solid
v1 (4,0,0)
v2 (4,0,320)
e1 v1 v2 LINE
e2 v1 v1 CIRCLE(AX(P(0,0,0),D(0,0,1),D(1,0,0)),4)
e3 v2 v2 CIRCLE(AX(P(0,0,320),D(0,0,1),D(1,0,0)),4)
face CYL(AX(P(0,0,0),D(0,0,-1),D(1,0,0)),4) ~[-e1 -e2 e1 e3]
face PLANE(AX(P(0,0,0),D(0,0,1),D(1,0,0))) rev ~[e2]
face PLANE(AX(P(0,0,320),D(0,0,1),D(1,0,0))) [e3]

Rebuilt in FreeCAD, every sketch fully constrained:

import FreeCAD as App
import Part
import Sketcher
from FreeCAD import Vector

doc = App.newDocument("Part")
params = doc.addObject("Spreadsheet::Sheet", "Params")
for row, (alias, value) in enumerate([
    ("sketch1_diameter", "8 mm"),
    ("pad1_length", "320 mm"),
], start=1):
    params.set(f"A{row}", alias)
    params.set(f"B{row}", "=" + value)
    params.setAlias(f"B{row}", alias)

body = doc.addObject("PartDesign::Body", "Body")

sketch1 = body.newObject("Sketcher::SketchObject", "Sketch")
sketch1.AttachmentSupport = (doc.getObject("XY_Plane"), [""])
sketch1.MapMode = "FlatFace"
sketch1.addGeometry(Part.Circle(Vector(0, 0, 0), Vector(0, 0, 1), 4), False)
sketch1.addConstraint([
    Sketcher.Constraint("Coincident", 0, 3, -1, 1),
    Sketcher.Constraint("Diameter", 0, 8.0),
])
sketch1.setExpression("Constraints[1]", "Params.sketch1_diameter")
pad1 = body.newObject("PartDesign::Pad", "Pad")
pad1.Profile = sketch1
pad1.setExpression("Length", "Params.pad1_length")

doc.recompute()
